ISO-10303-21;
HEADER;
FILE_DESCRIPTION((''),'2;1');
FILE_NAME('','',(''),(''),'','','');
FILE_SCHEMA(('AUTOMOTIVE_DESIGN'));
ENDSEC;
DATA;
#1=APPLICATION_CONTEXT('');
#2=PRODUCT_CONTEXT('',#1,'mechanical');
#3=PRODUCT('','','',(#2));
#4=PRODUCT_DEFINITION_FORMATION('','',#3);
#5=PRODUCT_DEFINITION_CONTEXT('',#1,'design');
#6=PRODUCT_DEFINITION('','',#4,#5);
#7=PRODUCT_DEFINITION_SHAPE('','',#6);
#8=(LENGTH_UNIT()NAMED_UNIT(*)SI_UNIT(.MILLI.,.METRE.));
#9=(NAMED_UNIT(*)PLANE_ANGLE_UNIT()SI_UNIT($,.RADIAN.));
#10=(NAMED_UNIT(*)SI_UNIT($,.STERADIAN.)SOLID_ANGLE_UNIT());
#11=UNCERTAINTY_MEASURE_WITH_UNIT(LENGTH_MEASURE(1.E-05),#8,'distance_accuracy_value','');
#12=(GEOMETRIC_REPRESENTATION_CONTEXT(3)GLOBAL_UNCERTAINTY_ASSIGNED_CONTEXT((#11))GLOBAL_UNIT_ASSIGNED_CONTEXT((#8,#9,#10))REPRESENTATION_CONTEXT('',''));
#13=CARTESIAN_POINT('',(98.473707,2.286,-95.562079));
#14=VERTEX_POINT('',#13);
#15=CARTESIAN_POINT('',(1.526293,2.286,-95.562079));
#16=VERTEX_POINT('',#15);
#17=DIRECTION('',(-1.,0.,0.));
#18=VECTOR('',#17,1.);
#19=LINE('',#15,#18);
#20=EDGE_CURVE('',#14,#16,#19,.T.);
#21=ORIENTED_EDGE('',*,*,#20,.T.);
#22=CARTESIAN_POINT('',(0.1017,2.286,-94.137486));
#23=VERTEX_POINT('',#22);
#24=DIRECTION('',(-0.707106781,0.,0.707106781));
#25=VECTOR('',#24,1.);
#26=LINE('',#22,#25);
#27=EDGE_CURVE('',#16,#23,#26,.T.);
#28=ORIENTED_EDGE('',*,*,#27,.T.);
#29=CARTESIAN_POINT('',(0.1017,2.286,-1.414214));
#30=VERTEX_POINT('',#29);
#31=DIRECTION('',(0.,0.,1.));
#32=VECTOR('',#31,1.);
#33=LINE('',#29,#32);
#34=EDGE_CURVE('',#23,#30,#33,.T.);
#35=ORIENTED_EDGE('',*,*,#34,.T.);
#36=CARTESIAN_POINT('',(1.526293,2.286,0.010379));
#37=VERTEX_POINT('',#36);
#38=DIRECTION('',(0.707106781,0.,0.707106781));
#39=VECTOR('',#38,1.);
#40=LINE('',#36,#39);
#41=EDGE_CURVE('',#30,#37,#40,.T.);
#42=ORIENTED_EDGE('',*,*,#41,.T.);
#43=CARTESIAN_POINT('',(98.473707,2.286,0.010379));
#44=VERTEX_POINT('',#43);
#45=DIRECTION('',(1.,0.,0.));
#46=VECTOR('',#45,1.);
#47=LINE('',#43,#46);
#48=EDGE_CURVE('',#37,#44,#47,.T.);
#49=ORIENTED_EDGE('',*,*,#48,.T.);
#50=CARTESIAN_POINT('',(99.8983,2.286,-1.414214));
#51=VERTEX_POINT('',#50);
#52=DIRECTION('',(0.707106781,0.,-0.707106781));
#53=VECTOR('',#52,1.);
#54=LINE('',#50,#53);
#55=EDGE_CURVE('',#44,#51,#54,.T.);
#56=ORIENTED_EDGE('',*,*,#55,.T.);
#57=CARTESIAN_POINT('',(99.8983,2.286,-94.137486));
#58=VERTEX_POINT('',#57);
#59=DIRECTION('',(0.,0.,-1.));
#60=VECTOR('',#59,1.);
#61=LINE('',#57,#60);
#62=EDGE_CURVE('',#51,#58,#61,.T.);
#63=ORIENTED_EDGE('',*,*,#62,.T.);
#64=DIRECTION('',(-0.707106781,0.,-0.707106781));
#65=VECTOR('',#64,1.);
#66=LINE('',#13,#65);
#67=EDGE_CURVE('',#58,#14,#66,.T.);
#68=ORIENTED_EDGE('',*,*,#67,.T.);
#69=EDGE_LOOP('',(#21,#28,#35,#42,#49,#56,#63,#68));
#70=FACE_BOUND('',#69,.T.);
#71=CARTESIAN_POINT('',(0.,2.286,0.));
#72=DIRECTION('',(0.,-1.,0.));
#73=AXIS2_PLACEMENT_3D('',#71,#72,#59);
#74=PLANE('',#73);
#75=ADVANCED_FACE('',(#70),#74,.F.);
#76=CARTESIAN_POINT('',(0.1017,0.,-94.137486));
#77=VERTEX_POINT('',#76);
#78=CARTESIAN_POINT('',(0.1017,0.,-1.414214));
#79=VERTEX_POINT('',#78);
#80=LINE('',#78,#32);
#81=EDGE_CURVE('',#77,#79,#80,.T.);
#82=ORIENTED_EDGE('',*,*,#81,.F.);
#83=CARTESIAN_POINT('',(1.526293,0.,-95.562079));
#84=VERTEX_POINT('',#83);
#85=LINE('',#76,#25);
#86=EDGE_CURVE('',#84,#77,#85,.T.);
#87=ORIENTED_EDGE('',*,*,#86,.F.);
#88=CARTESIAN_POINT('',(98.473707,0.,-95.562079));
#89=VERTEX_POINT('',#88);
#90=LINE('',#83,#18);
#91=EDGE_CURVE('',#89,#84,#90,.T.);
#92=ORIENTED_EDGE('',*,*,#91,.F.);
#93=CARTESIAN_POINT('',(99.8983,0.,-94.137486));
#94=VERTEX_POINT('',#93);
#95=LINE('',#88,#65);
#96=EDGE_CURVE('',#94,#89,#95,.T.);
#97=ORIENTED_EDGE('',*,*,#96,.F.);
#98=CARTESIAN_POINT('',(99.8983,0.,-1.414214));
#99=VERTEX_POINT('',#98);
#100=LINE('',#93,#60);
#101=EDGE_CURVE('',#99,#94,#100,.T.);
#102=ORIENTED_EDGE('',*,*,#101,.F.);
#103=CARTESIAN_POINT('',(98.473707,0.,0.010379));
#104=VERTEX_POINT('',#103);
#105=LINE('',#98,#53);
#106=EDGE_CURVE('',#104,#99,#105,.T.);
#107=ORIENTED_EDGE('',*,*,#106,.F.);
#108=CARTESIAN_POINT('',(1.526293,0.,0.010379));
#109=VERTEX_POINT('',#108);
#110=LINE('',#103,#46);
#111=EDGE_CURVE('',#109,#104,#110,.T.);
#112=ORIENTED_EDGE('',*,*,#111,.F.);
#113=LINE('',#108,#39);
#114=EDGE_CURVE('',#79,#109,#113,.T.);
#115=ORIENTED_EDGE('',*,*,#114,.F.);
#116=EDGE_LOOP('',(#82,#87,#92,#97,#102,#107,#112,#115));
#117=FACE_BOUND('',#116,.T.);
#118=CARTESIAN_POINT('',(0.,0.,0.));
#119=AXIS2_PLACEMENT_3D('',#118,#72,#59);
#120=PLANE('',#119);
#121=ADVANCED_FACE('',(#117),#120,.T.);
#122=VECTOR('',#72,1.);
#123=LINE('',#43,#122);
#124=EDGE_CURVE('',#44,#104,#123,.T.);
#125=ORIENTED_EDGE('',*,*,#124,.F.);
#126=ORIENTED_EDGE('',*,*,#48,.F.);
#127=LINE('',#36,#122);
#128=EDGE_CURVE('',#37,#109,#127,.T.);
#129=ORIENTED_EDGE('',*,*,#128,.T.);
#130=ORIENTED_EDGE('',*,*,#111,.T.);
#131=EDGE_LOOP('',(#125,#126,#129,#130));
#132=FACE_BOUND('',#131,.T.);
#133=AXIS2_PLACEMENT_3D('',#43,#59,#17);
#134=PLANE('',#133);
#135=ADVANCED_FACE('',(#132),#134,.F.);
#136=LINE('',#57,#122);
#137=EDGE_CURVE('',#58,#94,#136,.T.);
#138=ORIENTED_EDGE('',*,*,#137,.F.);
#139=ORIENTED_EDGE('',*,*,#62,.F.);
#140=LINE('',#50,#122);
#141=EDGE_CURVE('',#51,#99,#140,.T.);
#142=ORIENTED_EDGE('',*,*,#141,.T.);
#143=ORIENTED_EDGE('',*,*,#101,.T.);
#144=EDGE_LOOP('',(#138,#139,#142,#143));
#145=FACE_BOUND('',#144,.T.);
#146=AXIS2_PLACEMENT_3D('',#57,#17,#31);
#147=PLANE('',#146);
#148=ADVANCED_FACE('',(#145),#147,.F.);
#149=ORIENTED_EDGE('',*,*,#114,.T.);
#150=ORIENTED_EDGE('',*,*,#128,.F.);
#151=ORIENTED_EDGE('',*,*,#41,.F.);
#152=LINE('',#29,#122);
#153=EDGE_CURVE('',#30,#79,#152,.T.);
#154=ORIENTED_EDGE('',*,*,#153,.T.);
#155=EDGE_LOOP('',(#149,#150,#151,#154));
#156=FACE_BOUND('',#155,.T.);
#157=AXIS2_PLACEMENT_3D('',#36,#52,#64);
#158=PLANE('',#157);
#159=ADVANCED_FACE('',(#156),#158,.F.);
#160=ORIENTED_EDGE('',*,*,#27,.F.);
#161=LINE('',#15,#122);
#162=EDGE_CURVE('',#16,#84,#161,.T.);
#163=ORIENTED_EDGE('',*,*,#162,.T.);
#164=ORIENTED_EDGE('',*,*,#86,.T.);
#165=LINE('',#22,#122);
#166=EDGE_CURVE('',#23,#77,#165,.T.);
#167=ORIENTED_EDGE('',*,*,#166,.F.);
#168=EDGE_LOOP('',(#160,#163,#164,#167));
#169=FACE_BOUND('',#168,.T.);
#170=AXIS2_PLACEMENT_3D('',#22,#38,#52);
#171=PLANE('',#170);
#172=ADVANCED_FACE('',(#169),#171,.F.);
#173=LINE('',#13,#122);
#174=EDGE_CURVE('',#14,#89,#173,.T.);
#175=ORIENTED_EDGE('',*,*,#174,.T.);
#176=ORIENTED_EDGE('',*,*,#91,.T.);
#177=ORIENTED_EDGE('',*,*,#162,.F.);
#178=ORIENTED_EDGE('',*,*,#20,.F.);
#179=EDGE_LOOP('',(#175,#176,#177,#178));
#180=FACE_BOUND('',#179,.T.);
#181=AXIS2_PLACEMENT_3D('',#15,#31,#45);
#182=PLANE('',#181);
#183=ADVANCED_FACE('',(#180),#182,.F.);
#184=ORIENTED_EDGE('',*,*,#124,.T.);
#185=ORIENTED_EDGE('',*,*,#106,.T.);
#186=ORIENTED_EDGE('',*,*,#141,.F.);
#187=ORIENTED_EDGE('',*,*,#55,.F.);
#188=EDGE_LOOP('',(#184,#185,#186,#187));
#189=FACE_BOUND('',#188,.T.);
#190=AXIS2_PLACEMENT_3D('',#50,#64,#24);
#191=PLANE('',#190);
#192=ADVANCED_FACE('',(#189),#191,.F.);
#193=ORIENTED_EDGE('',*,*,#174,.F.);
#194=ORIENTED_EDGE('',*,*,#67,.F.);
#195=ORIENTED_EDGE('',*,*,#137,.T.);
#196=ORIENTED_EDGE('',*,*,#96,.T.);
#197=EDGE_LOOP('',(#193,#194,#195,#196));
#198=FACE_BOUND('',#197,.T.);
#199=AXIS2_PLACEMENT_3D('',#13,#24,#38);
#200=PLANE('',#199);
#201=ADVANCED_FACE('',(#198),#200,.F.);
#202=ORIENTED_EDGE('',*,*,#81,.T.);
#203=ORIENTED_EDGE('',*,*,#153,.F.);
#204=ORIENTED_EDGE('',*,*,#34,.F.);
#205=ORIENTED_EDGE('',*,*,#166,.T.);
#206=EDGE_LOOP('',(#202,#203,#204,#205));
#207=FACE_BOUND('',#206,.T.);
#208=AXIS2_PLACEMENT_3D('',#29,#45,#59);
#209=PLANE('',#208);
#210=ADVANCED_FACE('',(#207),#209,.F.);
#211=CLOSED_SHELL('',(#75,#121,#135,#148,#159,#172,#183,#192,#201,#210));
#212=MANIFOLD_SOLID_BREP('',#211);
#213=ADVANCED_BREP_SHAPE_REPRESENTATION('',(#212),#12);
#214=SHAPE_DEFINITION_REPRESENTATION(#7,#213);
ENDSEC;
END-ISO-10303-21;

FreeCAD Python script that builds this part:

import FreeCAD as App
import Part
import Sketcher

V = App.Vector
Q = App.Units.Quantity


def add_polygon(sketch, points):
    """Adds a closed chain of lines whose ends are joined by coincident constraints."""
    first, n = sketch.GeometryCount, len(points)
    for a, b in zip(points, points[1:] + points[:1]):
        sketch.addGeometry(Part.LineSegment(App.Vector(*a, 0), App.Vector(*b, 0)), False)
    for i in range(n):
        sketch.addConstraint(Sketcher.Constraint("Coincident", first + i, 2, first + (i + 1) % n, 1))

doc = App.newDocument("Part")
params = doc.addObject("Spreadsheet::Sheet", "Params")
for row, (alias, value) in enumerate([
    ("pad1_length", "0.09 in"),
], start=1):
    params.set(f"A{row}", alias)
    params.set(f"B{row}", "=" + value)
    params.setAlias(f"B{row}", alias)

body = doc.addObject("PartDesign::Body", "Body")

# Sketch on XZ plane
sketch1 = body.newObject("Sketcher::SketchObject", "Sketch")
sketch1.AttachmentSupport = (doc.getObject("XZ_Plane"), [""])
sketch1.MapMode = "FlatFace"
add_polygon(sketch1, [(1.5, -95.6), (0.1, -94.1), (0.1, -1.4), (1.5, 0), (98.5, 0), (99.9, -1.4), (99.9, -94.1), (98.5, -95.6)])  # lines 0-7
sketch1.addConstraint([
    Sketcher.Constraint("Vertical", 1),
    Sketcher.Constraint("Horizontal", 3),
    Sketcher.Constraint("Vertical", 5),
    Sketcher.Constraint("Horizontal", 7),
    Sketcher.Constraint("Perpendicular", 0, 2),
    Sketcher.Constraint("Perpendicular", 2, 4),
    Sketcher.Constraint("Perpendicular", 4, 6),
    Sketcher.Constraint("Horizontal", 1, 2, 4, 2),
    Sketcher.Constraint("Horizontal", 0, 2, 5, 2),
    Sketcher.Constraint("Vertical", 3, 2, 6, 2),
    Sketcher.Constraint("Vertical", 2, 2, 7, 2),
    Sketcher.Constraint("DistanceX", 1, 2, 4, 2, Q("3.929 in")),
    Sketcher.Constraint("DistanceX", -1, 1, 0, 2, Q("0.1017 mm")),
    Sketcher.Constraint("Distance", 0, Q("2.014678 mm")),
    Sketcher.Constraint("DistanceY", 1, 1, 1, 2, Q("92.723273 mm")),
    Sketcher.Constraint("DistanceY", -1, 1, 2, 2, Q("0.010379 mm")),
])
pad1 = body.newObject("PartDesign::Pad", "Pad")
pad1.Profile = sketch1
pad1.setExpression("Length", "Params.pad1_length")
pad1.Reversed = True

doc.recompute()
